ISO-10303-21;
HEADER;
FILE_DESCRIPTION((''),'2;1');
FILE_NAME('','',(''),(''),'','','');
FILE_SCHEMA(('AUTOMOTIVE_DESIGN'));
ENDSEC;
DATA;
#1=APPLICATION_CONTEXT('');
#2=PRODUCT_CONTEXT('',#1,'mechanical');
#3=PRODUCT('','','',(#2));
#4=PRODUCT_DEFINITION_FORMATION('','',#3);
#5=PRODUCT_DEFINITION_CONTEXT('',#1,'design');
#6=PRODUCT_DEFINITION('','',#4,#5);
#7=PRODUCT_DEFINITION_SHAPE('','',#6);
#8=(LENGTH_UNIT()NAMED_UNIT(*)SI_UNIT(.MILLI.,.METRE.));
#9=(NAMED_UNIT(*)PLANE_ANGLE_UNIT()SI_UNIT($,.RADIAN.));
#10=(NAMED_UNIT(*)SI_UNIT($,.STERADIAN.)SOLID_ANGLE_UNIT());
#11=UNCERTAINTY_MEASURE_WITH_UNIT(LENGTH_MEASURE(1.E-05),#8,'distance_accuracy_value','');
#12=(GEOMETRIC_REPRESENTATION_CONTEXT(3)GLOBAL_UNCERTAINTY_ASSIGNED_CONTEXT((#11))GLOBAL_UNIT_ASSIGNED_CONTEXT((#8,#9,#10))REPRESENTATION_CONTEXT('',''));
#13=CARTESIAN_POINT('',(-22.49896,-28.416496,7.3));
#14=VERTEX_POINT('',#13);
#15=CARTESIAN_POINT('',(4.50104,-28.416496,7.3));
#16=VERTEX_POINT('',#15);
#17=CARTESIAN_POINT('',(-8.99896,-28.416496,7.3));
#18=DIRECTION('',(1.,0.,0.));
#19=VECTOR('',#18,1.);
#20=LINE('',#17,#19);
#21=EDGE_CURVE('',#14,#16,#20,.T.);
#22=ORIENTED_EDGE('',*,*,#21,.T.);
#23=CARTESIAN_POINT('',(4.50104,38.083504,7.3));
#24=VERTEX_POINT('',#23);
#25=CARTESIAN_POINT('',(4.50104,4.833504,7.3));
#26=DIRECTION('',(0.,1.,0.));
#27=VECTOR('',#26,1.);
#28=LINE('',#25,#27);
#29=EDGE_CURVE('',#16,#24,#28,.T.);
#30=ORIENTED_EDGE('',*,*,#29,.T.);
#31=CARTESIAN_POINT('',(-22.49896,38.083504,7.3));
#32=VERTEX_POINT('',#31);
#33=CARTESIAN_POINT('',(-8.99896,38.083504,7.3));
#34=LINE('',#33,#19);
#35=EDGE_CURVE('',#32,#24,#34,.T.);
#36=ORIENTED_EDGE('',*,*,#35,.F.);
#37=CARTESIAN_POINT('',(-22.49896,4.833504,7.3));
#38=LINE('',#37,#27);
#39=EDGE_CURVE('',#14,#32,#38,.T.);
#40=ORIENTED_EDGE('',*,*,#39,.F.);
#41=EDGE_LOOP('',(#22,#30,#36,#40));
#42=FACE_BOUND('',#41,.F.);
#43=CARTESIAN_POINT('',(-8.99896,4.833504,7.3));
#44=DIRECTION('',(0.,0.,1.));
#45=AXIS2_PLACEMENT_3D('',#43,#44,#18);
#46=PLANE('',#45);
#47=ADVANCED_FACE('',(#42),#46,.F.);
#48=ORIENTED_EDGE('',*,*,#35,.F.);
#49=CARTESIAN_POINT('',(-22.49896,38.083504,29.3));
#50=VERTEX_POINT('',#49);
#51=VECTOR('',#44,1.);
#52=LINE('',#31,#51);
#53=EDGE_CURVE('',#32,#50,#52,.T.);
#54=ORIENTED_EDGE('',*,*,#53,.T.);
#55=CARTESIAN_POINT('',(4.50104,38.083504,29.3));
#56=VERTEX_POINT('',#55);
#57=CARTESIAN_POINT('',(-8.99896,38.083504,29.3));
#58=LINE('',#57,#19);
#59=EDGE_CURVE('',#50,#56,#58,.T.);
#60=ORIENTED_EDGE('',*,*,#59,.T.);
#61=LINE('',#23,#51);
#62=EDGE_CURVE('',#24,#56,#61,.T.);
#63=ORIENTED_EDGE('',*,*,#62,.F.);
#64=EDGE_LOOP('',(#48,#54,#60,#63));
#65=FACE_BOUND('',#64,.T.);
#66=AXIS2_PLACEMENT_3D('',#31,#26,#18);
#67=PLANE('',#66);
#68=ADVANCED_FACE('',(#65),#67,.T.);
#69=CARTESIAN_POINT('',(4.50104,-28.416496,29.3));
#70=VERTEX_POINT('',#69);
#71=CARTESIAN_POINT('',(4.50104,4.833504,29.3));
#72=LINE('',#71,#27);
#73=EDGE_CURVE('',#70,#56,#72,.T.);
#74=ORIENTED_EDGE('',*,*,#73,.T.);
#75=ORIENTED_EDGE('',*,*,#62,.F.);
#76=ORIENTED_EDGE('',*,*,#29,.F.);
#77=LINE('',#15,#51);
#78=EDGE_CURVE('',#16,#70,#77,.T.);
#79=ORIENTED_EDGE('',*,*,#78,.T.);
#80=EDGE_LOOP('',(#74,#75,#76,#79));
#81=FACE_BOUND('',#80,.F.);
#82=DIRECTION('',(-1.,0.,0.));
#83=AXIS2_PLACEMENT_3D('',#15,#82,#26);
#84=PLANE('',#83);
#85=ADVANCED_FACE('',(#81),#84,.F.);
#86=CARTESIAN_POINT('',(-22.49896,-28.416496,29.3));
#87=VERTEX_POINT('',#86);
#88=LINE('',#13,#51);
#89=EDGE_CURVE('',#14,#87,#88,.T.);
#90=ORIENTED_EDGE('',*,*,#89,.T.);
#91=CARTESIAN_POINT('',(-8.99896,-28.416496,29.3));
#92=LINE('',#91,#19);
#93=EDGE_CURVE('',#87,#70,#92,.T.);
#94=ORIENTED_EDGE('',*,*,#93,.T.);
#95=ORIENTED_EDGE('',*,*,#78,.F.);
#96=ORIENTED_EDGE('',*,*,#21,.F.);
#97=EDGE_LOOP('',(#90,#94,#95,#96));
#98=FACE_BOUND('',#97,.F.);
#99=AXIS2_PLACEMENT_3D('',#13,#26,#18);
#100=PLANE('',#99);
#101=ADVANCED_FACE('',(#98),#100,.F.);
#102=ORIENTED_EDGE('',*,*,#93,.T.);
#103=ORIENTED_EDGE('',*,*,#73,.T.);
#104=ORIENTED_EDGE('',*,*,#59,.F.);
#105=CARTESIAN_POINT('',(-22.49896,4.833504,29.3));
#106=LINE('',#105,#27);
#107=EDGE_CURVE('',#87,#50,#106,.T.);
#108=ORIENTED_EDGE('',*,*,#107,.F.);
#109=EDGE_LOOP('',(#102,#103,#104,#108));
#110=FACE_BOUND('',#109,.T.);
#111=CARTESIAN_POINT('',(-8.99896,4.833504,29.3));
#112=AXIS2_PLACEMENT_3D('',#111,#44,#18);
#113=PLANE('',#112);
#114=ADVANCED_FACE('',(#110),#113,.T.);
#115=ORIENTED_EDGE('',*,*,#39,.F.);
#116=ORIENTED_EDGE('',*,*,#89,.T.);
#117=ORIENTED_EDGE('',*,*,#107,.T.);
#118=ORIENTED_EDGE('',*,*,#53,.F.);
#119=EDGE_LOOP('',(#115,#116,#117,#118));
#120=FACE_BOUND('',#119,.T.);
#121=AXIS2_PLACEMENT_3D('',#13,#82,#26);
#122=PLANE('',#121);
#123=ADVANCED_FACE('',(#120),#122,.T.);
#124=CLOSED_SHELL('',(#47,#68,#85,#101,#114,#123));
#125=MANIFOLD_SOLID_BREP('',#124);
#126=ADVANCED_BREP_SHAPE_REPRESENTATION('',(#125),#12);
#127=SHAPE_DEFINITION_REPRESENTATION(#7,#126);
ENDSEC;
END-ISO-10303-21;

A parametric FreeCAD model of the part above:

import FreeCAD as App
import Part
import Sketcher
Q = App.Units.Quantity

doc = App.newDocument("Part")
body = doc.addObject("PartDesign::Body", "Body")

# Sketch on XY plane
sketch1 = doc.addObject("Sketcher::SketchObject", "Sketch")
body.addObject(sketch1)
sketch1.AttachmentSupport = (doc.XY_Plane, [""])
sketch1.MapMode = "FlatFace"
sketch1.addGeometry([
    Part.LineSegment(App.Vector(-22.49896, 38.083504, 0), App.Vector(-22.49896, -28.416496, 0)),
    Part.LineSegment(App.Vector(-22.49896, -28.416496, 0), App.Vector(4.50104, -28.416496, 0)),
    Part.LineSegment(App.Vector(4.50104, -28.416496, 0), App.Vector(4.50104, 38.083504, 0)),
    Part.LineSegment(App.Vector(4.50104, 38.083504, 0), App.Vector(-22.49896, 38.083504, 0)),
], False)
sketch1.addConstraint([
    Sketcher.Constraint("Coincident", 0, 2, 1, 1),
    Sketcher.Constraint("Coincident", 1, 2, 2, 1),
    Sketcher.Constraint("Coincident", 2, 2, 3, 1),
    Sketcher.Constraint("Coincident", 3, 2, 0, 1),
    Sketcher.Constraint("Vertical", 0),
    Sketcher.Constraint("Horizontal", 1),
    Sketcher.Constraint("Vertical", 2),
    Sketcher.Constraint("Horizontal", 3),
    Sketcher.Constraint("DistanceX", 1, 1, 1, 2, Q("27 mm")),
    Sketcher.Constraint("DistanceY", 0, 2, 0, 1, Q("66.5 mm")),
    Sketcher.Constraint("DistanceX", 0, 2, -1, 1, Q("22.49896 mm")),
    Sketcher.Constraint("DistanceY", 0, 2, -1, 1, Q("28.416496 mm")),
])
pad1 = doc.addObject("PartDesign::Pad", "Pad")
body.addObject(pad1)
pad1.Profile = sketch1
pad1.Length = 22
body2 = doc.addObject("PartDesign::Body", "Body001")
doc.recompute()

body.Placement = App.Placement(App.Vector(0, 0, 7.3), App.Rotation(App.Vector(0, 0, 1), 0))
boolean = doc.addObject("PartDesign::Boolean", "Boolean")
body2.addObject(boolean)
boolean.Type = "Fuse"
boolean.addObjects([body])

doc.recompute()
